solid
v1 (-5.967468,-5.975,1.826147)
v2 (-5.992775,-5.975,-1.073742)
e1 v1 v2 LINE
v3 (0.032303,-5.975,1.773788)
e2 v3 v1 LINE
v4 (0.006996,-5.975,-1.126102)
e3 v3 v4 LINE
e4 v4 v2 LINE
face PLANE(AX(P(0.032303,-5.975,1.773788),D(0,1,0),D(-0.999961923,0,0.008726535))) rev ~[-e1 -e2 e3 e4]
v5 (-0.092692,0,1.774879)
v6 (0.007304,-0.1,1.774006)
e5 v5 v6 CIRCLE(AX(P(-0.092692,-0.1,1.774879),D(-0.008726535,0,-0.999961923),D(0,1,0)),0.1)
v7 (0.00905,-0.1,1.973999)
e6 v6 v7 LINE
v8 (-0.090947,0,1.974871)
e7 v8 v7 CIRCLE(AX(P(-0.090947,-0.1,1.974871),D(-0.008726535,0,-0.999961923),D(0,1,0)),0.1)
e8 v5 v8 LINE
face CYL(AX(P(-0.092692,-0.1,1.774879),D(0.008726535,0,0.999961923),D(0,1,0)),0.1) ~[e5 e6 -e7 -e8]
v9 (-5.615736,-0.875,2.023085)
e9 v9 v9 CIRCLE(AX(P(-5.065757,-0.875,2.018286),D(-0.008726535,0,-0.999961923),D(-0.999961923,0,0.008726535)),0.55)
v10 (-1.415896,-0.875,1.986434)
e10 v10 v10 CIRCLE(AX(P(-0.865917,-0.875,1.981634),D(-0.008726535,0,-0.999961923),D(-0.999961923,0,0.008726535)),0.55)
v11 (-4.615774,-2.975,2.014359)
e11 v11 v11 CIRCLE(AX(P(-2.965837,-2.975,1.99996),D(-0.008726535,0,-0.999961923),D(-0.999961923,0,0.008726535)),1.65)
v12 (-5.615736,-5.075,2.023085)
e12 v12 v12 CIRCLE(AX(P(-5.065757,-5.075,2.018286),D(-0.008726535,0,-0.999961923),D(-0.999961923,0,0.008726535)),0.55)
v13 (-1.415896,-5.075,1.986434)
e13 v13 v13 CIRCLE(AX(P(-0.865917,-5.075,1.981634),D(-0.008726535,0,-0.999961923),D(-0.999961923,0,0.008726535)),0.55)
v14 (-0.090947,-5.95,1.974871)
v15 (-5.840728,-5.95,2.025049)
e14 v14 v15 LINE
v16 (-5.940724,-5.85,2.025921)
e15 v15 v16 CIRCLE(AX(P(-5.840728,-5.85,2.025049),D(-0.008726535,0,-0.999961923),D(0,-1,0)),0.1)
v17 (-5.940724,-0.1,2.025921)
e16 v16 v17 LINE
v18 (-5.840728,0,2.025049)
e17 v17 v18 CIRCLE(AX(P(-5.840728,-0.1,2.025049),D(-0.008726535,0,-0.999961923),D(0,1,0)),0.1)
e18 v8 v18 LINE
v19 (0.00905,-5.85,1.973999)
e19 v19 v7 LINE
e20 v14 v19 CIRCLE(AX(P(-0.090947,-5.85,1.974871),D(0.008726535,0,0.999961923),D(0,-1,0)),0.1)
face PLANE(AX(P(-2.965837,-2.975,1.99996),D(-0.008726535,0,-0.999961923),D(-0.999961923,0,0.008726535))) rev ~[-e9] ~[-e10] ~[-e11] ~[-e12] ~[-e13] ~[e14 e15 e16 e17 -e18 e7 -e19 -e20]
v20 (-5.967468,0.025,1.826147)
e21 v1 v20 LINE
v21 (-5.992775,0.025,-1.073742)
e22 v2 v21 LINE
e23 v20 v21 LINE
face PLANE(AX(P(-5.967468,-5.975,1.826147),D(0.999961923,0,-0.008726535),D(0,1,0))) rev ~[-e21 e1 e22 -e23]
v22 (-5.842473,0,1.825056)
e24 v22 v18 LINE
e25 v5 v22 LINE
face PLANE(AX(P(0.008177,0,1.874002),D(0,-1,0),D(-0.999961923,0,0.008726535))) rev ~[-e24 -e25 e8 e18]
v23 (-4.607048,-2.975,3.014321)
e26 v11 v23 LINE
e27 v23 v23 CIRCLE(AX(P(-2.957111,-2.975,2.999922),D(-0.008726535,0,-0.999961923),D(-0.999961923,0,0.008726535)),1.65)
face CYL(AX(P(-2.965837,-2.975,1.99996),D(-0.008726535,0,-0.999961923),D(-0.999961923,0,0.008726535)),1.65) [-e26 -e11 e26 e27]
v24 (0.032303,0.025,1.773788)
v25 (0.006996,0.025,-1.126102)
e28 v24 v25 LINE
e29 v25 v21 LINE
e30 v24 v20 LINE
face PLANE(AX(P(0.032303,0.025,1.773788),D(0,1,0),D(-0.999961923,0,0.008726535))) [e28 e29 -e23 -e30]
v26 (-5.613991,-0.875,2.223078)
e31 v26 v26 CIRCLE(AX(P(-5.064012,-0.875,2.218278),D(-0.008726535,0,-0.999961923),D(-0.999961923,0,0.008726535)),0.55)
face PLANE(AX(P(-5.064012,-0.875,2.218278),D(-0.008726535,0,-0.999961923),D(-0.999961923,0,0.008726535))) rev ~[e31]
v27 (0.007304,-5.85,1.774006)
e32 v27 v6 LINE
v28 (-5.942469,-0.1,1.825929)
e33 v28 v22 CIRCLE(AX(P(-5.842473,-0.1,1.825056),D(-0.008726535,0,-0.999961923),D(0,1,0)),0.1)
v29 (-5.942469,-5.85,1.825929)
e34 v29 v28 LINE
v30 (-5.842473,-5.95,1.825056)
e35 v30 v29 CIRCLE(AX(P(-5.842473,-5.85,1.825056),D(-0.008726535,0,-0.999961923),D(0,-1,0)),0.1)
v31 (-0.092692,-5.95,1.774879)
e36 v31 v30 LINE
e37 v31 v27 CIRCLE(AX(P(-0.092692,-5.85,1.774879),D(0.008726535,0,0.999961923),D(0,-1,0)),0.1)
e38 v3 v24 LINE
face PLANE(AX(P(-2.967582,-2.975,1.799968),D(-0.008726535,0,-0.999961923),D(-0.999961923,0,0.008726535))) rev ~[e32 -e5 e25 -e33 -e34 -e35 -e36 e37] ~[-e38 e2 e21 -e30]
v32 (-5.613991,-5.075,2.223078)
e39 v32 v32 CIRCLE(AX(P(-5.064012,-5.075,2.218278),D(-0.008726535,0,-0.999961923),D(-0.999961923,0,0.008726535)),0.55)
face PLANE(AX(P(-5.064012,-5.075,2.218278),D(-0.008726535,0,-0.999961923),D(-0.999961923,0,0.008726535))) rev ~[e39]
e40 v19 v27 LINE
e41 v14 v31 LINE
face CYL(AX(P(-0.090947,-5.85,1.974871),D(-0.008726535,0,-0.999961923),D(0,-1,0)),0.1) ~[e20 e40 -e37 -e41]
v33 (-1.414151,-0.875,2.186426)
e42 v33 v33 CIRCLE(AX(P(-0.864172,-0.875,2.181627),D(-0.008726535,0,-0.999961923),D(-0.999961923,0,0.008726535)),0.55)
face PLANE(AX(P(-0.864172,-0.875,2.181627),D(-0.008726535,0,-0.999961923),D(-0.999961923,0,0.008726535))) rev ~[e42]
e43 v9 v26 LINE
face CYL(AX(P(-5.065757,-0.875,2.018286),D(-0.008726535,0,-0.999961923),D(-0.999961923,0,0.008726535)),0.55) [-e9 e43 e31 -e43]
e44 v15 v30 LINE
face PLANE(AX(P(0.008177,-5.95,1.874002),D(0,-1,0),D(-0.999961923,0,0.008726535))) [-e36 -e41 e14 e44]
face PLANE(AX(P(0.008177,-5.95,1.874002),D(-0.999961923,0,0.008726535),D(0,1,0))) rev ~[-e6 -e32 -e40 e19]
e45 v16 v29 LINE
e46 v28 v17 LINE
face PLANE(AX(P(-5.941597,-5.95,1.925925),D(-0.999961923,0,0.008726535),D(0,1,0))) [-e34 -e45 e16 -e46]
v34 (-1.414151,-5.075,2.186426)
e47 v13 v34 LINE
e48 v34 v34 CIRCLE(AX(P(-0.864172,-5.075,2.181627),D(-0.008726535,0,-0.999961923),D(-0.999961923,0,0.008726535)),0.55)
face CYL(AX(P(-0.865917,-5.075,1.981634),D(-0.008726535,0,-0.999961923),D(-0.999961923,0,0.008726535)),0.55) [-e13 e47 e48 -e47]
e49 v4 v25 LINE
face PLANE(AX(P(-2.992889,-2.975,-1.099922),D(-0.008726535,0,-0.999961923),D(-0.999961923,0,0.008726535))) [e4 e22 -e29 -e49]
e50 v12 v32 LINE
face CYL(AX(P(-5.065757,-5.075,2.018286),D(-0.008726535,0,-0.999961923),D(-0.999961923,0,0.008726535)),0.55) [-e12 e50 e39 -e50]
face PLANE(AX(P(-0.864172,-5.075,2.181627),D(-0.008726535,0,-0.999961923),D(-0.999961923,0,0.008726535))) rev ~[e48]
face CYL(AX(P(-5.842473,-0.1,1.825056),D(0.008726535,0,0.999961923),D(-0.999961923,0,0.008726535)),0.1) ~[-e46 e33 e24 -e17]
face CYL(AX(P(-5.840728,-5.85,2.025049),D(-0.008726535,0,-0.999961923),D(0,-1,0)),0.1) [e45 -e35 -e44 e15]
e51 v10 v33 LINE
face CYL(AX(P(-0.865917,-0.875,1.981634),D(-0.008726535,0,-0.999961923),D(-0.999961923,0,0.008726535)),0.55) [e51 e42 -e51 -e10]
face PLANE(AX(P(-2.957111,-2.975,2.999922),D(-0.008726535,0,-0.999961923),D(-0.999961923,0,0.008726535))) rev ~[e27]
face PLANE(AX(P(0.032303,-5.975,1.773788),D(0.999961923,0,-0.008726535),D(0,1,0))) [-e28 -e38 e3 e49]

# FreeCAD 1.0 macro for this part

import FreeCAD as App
import Part
import Sketcher
Q = App.Units.Quantity


def edges_at(feature, points):
    """Names of the edges that pass closest to the given points."""
    edges = feature.Shape.Edges
    near = lambda p: min(range(len(edges)), key=lambda i: edges[i].distToShape(Part.Vertex(*p))[0])
    return sorted({f"Edge{near(p) + 1}" for p in points})


def add_polygon(sketch, points):
    """Adds a closed chain of lines whose ends are joined by coincident constraints."""
    first, n = sketch.GeometryCount, len(points)
    for a, b in zip(points, points[1:] + points[:1]):
        sketch.addGeometry(Part.LineSegment(App.Vector(*a, 0), App.Vector(*b, 0)), False)
    for i in range(n):
        sketch.addConstraint(Sketcher.Constraint("Coincident", first + i, 2, first + (i + 1) % n, 1))

doc = App.newDocument("Part")
params = doc.addObject("Spreadsheet::Sheet", "Params")
for row, (alias, value) in enumerate([
    ("sketch1_width", "5.95 mm"),
    ("pad1_length", "0.2 mm"),
    ("sketch2_width", "6 mm"),
    ("pad2_length", "2.9 mm"),
    ("fillet_radius", "0.1 mm"),
    ("sketch3_diameter", "3.3 mm"),
    ("sketch3_diameter2", "1.1 mm"),
    ("pad3_length", "0.2 mm"),
    ("sketch4_diameter", "3.3 mm"),
    ("pad4_length", "1 mm"),
], start=1):
    params.set(f"A{row}", alias)
    params.set(f"B{row}", "=" + value)
    params.setAlias(f"B{row}", alias)

body = doc.addObject("PartDesign::Body", "Body")

# Sketch on XY plane
sketch1 = body.newObject("Sketcher::SketchObject", "Sketch")
sketch1.AttachmentSupport = (doc.getObject("XY_Plane"), [""])
sketch1.MapMode = "FlatFace"
add_polygon(sketch1, [(-6, 0), (-6, -6), (0, -6), (0, 0)])  # lines 0-3
sketch1.addConstraint([
    Sketcher.Constraint("Vertical", 0),
    Sketcher.Constraint("Horizontal", 1),
    Sketcher.Constraint("Vertical", 2),
    Sketcher.Constraint("Horizontal", 3),
    Sketcher.Constraint("Coincident", 2, 2, -1, 1),
    Sketcher.Constraint("Equal", 3, 0),
    Sketcher.Constraint("DistanceX", 1, 1, 1, 2, Q("5.95 mm")),
])
sketch1.setExpression("Constraints[10]", "Params.sketch1_width")
pad1 = body.newObject("PartDesign::Pad", "Pad")
pad1.Profile = sketch1
pad1.setExpression("Length", "Params.pad1_length")
pad1.Midplane = True

# Sketch on XY plane
sketch2 = body.newObject("Sketcher::SketchObject", "Sketch001")
sketch2.AttachmentSupport = (doc.getObject("XY_Plane"), [""])
sketch2.MapMode = "FlatFace"
sketch2.AttachmentOffset = App.Placement(App.Vector(0, 0, 0.1), App.Rotation())
add_polygon(sketch2, [(-6, 0), (-6, -6), (0, -6), (0, 0)])  # lines 0-3
sketch2.addConstraint([
    Sketcher.Constraint("Vertical", 0),
    Sketcher.Constraint("Horizontal", 1),
    Sketcher.Constraint("Vertical", 2),
    Sketcher.Constraint("Horizontal", 3),
    Sketcher.Constraint("Equal", 3, 0),
    Sketcher.Constraint("DistanceX", 1, 1, 1, 2, Q("6 mm")),
    Sketcher.Constraint("DistanceX", 0, 2, -1, 1, Q("5.975 mm")),
    Sketcher.Constraint("DistanceY", 0, 2, -1, 1, Q("5.975 mm")),
])
sketch2.setExpression("Constraints[9]", "Params.sketch2_width")
pad2 = body.newObject("PartDesign::Pad", "Pad001")
pad2.Profile = sketch2
pad2.setExpression("Length", "Params.pad2_length")
doc.recompute()

fillet = body.newObject("PartDesign::Fillet", "Fillet")
fillet.Base = (pad2, edges_at(pad2, [
    (0, -5.95, 0),
    (-5.95, -5.95, 0),
    (-5.95, 0, 0),
    (0, 0, 0),
]))
fillet.setExpression("Radius", "Params.fillet_radius")

# Sketch on XY plane
sketch3 = body.newObject("Sketcher::SketchObject", "Sketch002")
sketch3.AttachmentSupport = (doc.getObject("XY_Plane"), [""])
sketch3.MapMode = "FlatFace"
sketch3.AttachmentOffset = App.Placement(App.Vector(0, 0, -0.1), App.Rotation())
sketch3.addGeometry([
    Part.Circle(App.Vector(-3, -3, 0), App.Vector(0, 0, 1), 1.6),  # 0
    Part.Circle(App.Vector(-5.1, -0.9, 0), App.Vector(0, 0, 1), 0.6),  # 1
    Part.Circle(App.Vector(-5.1, -5.1, 0), App.Vector(0, 0, 1), 0.6),  # 2
    Part.Circle(App.Vector(-0.9, -5.1, 0), App.Vector(0, 0, 1), 0.6),  # 3
    Part.Circle(App.Vector(-0.9, -0.9, 0), App.Vector(0, 0, 1), 0.6),  # 4
], False)
sketch3.addConstraint([
    Sketcher.Constraint("Equal", 1, 2),
    Sketcher.Constraint("Equal", 2, 3),
    Sketcher.Constraint("Equal", 3, 4),
    Sketcher.Constraint("Horizontal", 2, 3, 3, 3),
    Sketcher.Constraint("Horizontal", 1, 3, 4, 3),
    Sketcher.Constraint("Vertical", 1, 3, 2, 3),
    Sketcher.Constraint("Vertical", 3, 3, 4, 3),
    Sketcher.Constraint("Diameter", 0, Q("3.3 mm")),
    Sketcher.Constraint("Diameter", 1, Q("1.1 mm")),
    Sketcher.Constraint("DistanceX", 1, 3, 0, 3, Q("2.1 mm")),
    Sketcher.Constraint("DistanceY", 0, 3, 1, 3, Q("2.1 mm")),
    Sketcher.Constraint("DistanceY", 2, 3, 0, 3, Q("2.1 mm")),
    Sketcher.Constraint("DistanceX", 0, 3, 3, 3, Q("2.1 mm")),
    Sketcher.Constraint("DistanceX", 0, 3, -1, 1, Q("2.975 mm")),
    Sketcher.Constraint("DistanceY", 0, 3, -1, 1, Q("2.975 mm")),
])
sketch3.setExpression("Constraints[7]", "Params.sketch3_diameter")
sketch3.setExpression("Constraints[8]", "Params.sketch3_diameter2")
pad3 = body.newObject("PartDesign::Pad", "Pad002")
pad3.Profile = sketch3
pad3.setExpression("Length", "Params.pad3_length")
pad3.Reversed = True

# Sketch on XY plane
sketch4 = body.newObject("Sketcher::SketchObject", "Sketch003")
sketch4.AttachmentSupport = (doc.getObject("XY_Plane"), [""])
sketch4.MapMode = "FlatFace"
sketch4.AttachmentOffset = App.Placement(App.Vector(0, 0, -0.1), App.Rotation())
sketch4.addGeometry(Part.Circle(App.Vector(-3, -3, 0), App.Vector(0, 0, 1), 1.6), False)
sketch4.addConstraint([
    Sketcher.Constraint("Diameter", 0, Q("3.3 mm")),
    Sketcher.Constraint("DistanceX", 0, 3, -1, 1, Q("2.975 mm")),
    Sketcher.Constraint("DistanceY", 0, 3, -1, 1, Q("2.975 mm")),
])
sketch4.setExpression("Constraints[0]", "Params.sketch4_diameter")
pad4 = body.newObject("PartDesign::Pad", "Pad003")
pad4.Profile = sketch4
pad4.setExpression("Length", "Params.pad4_length")
pad4.Reversed = True
body2 = doc.addObject("PartDesign::Body", "Body001")
doc.recompute()

body.Placement = App.Placement(App.Vector(-5.941597, 0, 1.925925), App.Rotation(App.Vector(0, -1, 0), 179.5))
boolean = body2.newObject("PartDesign::Boolean", "Boolean")
boolean.Type = "Fuse"
boolean.addObjects([body])

doc.recompute()
